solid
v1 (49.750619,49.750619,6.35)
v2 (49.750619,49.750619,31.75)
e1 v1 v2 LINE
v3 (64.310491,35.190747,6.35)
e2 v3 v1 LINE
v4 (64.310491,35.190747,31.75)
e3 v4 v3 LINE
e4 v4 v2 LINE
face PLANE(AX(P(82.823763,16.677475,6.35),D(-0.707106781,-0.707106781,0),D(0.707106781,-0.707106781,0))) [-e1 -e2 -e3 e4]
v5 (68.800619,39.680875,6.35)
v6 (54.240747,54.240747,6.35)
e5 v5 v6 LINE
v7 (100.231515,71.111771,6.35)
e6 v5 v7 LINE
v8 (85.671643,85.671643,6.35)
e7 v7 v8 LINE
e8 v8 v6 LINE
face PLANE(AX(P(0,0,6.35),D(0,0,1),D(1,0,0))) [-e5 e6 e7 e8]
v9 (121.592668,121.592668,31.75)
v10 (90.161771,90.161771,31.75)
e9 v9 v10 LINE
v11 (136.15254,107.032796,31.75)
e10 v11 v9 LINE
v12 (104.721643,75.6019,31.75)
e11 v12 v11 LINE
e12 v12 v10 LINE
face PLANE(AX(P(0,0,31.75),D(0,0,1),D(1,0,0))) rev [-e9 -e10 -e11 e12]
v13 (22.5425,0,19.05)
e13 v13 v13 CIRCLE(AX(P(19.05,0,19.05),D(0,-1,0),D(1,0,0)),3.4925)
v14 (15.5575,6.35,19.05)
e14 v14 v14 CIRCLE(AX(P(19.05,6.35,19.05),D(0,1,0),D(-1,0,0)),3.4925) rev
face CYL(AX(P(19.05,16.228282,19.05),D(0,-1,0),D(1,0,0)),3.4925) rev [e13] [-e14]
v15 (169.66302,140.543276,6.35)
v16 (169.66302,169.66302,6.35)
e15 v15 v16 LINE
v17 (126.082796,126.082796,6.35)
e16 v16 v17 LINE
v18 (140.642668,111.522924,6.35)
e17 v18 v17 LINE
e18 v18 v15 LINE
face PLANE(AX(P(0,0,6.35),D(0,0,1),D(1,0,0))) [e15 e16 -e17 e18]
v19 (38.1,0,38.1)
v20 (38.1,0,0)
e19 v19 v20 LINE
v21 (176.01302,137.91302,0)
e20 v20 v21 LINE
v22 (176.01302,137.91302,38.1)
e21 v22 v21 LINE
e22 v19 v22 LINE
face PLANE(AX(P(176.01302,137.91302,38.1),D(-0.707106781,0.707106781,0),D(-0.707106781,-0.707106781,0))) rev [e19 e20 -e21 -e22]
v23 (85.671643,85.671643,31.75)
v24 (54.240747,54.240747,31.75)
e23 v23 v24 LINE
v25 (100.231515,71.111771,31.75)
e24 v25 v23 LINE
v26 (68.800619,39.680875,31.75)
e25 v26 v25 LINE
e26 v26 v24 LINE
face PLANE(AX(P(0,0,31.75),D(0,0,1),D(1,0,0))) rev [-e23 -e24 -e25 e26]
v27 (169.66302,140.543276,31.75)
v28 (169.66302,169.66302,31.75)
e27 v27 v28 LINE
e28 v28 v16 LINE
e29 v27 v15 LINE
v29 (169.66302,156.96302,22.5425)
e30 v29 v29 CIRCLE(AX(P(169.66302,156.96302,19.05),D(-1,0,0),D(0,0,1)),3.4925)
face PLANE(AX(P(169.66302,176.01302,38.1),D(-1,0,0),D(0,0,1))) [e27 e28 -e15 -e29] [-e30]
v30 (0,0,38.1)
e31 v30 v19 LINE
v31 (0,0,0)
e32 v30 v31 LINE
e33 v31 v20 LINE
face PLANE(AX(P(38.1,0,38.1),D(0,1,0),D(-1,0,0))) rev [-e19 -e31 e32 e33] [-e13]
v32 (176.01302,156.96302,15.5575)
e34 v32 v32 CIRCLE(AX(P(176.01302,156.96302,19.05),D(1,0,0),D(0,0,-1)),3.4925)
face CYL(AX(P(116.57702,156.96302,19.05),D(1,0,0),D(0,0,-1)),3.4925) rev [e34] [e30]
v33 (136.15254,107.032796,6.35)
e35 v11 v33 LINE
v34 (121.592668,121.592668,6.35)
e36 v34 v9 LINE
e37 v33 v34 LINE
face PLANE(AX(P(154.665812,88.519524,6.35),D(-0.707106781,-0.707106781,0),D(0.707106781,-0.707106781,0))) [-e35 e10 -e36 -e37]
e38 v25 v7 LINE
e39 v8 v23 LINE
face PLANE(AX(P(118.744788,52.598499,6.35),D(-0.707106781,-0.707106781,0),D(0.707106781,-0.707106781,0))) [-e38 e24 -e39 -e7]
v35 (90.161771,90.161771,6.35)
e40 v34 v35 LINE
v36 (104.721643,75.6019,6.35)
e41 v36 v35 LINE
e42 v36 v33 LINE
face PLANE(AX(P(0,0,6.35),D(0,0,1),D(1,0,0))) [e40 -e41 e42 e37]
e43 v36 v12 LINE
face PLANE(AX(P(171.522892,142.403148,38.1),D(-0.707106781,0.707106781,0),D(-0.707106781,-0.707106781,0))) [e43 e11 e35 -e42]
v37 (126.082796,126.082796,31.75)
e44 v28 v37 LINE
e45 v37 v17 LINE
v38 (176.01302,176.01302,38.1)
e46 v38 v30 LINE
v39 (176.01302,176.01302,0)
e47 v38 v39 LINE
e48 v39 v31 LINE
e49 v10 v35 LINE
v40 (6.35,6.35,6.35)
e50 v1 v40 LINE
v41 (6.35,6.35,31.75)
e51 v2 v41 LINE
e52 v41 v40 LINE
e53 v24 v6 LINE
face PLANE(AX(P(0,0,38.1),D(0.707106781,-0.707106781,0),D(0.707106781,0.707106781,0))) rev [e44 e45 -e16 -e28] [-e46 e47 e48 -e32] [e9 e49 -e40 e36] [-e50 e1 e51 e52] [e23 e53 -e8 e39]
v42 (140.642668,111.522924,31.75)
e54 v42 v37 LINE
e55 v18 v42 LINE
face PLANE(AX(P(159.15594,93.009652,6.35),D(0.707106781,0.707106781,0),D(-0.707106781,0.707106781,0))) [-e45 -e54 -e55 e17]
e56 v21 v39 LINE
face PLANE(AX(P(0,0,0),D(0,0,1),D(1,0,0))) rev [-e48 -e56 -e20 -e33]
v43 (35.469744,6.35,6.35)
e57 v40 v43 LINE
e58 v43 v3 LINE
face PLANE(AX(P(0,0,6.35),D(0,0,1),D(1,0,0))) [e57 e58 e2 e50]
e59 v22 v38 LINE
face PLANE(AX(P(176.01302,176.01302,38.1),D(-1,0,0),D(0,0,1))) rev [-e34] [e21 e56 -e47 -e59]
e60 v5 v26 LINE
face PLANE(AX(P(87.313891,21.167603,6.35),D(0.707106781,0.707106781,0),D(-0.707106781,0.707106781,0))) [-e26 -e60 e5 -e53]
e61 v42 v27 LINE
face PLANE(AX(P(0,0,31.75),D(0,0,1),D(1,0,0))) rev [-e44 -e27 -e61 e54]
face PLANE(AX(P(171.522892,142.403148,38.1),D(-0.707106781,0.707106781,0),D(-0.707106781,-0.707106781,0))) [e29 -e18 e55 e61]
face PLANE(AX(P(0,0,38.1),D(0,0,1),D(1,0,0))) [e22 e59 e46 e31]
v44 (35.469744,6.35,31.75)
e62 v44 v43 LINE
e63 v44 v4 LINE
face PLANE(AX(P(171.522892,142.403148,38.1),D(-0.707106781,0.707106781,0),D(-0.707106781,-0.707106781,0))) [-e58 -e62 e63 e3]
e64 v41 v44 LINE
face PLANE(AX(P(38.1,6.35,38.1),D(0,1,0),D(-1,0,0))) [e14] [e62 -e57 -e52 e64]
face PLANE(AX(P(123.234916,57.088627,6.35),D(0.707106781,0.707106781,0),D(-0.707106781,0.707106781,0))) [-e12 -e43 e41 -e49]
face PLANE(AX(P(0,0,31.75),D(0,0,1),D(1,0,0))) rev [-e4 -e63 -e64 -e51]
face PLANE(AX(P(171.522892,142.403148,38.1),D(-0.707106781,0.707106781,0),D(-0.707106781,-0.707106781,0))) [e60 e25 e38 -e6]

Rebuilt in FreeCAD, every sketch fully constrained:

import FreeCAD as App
import Part
import Sketcher

V = App.Vector
Q = App.Units.Quantity


def faces_at(feature, points):
    """Names of the faces that lie closest to the given points."""
    faces = feature.Shape.Faces
    near = lambda p: min(range(len(faces)), key=lambda i: faces[i].distToShape(Part.Vertex(*p))[0])
    return sorted({f"Face{near(p) + 1}" for p in points})

doc = App.newDocument("Part")
body = doc.addObject("PartDesign::Body", "Body")

# Sketch on XY plane
sketch1 = body.newObject("Sketcher::SketchObject", "Sketch")
sketch1.AttachmentSupport = (doc.getObject("XY_Plane"), [""])
sketch1.MapMode = "FlatFace"
sketch1.addGeometry([
    Part.LineSegment(V(176, 176, 0), V(0, 0, 0)),
    Part.LineSegment(V(0, 0, 0), V(38, 0, 0)),
    Part.LineSegment(V(38, 0, 0), V(176, 138, 0)),
    Part.LineSegment(V(176, 138, 0), V(176, 176, 0)),
], False)
sketch1.addConstraint([
    Sketcher.Constraint("Coincident", 0, 2, 1, 1),
    Sketcher.Constraint("Coincident", 1, 2, 2, 1),
    Sketcher.Constraint("Coincident", 2, 2, 3, 1),
    Sketcher.Constraint("Coincident", 3, 2, 0, 1),
    Sketcher.Constraint("Horizontal", 1),
    Sketcher.Constraint("Vertical", 3),
    Sketcher.Constraint("Coincident", 0, 2, -1, 1),
    Sketcher.Constraint("Parallel", 0, 2),
    Sketcher.Constraint("Equal", 1, 3),
    Sketcher.Constraint("DistanceX", 1, 1, 1, 2, Q("1.5 in")),
    Sketcher.Constraint("Distance", 0, Q("9.8 in")),
])
pad1 = body.newObject("PartDesign::Pad", "Pad")
pad1.Profile = sketch1
pad1.Length = Q("1.5 in")
doc.recompute()

thickness = body.newObject("PartDesign::Thickness", "Thickness")
thickness.Base = (pad1, faces_at(pad1, [(88.007, 88.007, 19.05)]))
thickness.Value = Q("0.25 in")
thickness.Reversed = True
thickness.Join = "Intersection"

# Sketch on XZ plane
sketch2 = body.newObject("Sketcher::SketchObject", "Sketch001")
sketch2.AttachmentSupport = (doc.getObject("XZ_Plane"), [""])
sketch2.MapMode = "FlatFace"
sketch2.addGeometry(Part.Circle(V(19.1, 19.1, 0), V(0, 0, 1), 3.5), False)
sketch2.addConstraint([
    Sketcher.Constraint("Diameter", 0, Q("0.275 in")),
    Sketcher.Constraint("DistanceX", -1, 1, 0, 3, Q("0.75 in")),
    Sketcher.Constraint("DistanceY", -1, 1, 0, 3, Q("0.75 in")),
])
pocket1 = body.newObject("PartDesign::Pocket", "Pocket")
pocket1.Profile = sketch2
pocket1.Length = Q("0.25 in")

# Sketch on YZ plane
sketch3 = body.newObject("Sketcher::SketchObject", "Sketch002")
sketch3.AttachmentSupport = (doc.getObject("YZ_Plane"), [""])
sketch3.MapMode = "FlatFace"
sketch3.AttachmentOffset = App.Placement(V(0, 0, 176.01302), App.Rotation())
sketch3.addGeometry(Part.Circle(V(157, 19.1, 0), V(0, 0, 1), 3.5), False)
sketch3.addConstraint([
    Sketcher.Constraint("Diameter", 0, Q("0.275 in")),
    Sketcher.Constraint("DistanceY", -1, 1, 0, 3, Q("0.75 in")),
    Sketcher.Constraint("DistanceX", -1, 1, 0, 3, 156.96302),
])
pocket2 = body.newObject("PartDesign::Pocket", "Pocket001")
pocket2.Profile = sketch3
pocket2.Length = Q("2.34 in")

# Sketch on an angled plane
sketch4 = body.newObject("Sketcher::SketchObject", "Sketch003")
sketch4.Placement = App.Placement(V(0, 0, 0), App.Rotation(V(0, 0, 1), V(0.707106781, 0.707106781, 0), V(-0.707106781, 0.707106781, 0), "ZXY"))
sketch4.addGeometry([
    Part.LineSegment(V(6, 128, 0), V(6, 121, 0)),  # 0
    Part.LineSegment(V(6, 121, 0), V(32, 121, 0)),  # 1
    Part.LineSegment(V(32, 121, 0), V(32, 128, 0)),  # 2
    Part.LineSegment(V(32, 128, 0), V(6, 128, 0)),  # 3
    Part.LineSegment(V(6, 178, 0), V(6, 172, 0)),  # 4
    Part.LineSegment(V(6, 172, 0), V(32, 172, 0)),  # 5
    Part.LineSegment(V(32, 172, 0), V(32, 178, 0)),  # 6
    Part.LineSegment(V(32, 178, 0), V(6, 178, 0)),  # 7
    Part.LineSegment(V(6, 77, 0), V(6, 70, 0)),  # 8
    Part.LineSegment(V(6, 70, 0), V(32, 70, 0)),  # 9
    Part.LineSegment(V(32, 70, 0), V(32, 77, 0)),  # 10
    Part.LineSegment(V(32, 77, 0), V(6, 77, 0)),  # 11
], False)
sketch4.addConstraint([
    Sketcher.Constraint("Coincident", 0, 2, 1, 1),
    Sketcher.Constraint("Coincident", 1, 2, 2, 1),
    Sketcher.Constraint("Coincident", 2, 2, 3, 1),
    Sketcher.Constraint("Coincident", 3, 2, 0, 1),
    Sketcher.Constraint("Coincident", 4, 2, 5, 1),
    Sketcher.Constraint("Coincident", 5, 2, 6, 1),
    Sketcher.Constraint("Coincident", 6, 2, 7, 1),
    Sketcher.Constraint("Coincident", 7, 2, 4, 1),
    Sketcher.Constraint("Coincident", 8, 2, 9, 1),
    Sketcher.Constraint("Coincident", 9, 2, 10, 1),
    Sketcher.Constraint("Coincident", 10, 2, 11, 1),
    Sketcher.Constraint("Coincident", 11, 2, 8, 1),
    Sketcher.Constraint("Vertical", 0),
    Sketcher.Constraint("Horizontal", 1),
    Sketcher.Constraint("Vertical", 2),
    Sketcher.Constraint("Horizontal", 3),
    Sketcher.Constraint("Vertical", 4),
    Sketcher.Constraint("Horizontal", 5),
    Sketcher.Constraint("Vertical", 6),
    Sketcher.Constraint("Horizontal", 7),
    Sketcher.Constraint("Vertical", 8),
    Sketcher.Constraint("Horizontal", 9),
    Sketcher.Constraint("Vertical", 10),
    Sketcher.Constraint("Horizontal", 11),
    Sketcher.Constraint("Vertical", 3, 2, 4, 2),
    Sketcher.Constraint("Vertical", 2, 2, 5, 2),
    Sketcher.Constraint("Vertical", 7, 2, 8, 2),
    Sketcher.Constraint("Vertical", 6, 2, 9, 2),
    Sketcher.Constraint("Equal", 2, 4),
    Sketcher.Constraint("Equal", 6, 8),
    Sketcher.Constraint("DistanceX", 1, 1, 1, 2, Q("1 in")),
    Sketcher.Constraint("DistanceY", 0, 2, 4, 2, Q("2 in")),
    Sketcher.Constraint("DistanceY", 8, 2, 0, 2, Q("2 in")),
    Sketcher.Constraint("DistanceY", 0, 2, 0, 1, Q("0.25 in")),
    Sketcher.Constraint("DistanceX", -1, 1, 0, 2, Q("0.25 in")),
    Sketcher.Constraint("DistanceY", -1, 1, 0, 2, Q("4.77 in")),
])
pad2 = body.newObject("PartDesign::Pad", "Pad001")
pad2.Profile = sketch4
pad2.Length = 26.940768
pad2.Reversed = True

doc.recompute()
